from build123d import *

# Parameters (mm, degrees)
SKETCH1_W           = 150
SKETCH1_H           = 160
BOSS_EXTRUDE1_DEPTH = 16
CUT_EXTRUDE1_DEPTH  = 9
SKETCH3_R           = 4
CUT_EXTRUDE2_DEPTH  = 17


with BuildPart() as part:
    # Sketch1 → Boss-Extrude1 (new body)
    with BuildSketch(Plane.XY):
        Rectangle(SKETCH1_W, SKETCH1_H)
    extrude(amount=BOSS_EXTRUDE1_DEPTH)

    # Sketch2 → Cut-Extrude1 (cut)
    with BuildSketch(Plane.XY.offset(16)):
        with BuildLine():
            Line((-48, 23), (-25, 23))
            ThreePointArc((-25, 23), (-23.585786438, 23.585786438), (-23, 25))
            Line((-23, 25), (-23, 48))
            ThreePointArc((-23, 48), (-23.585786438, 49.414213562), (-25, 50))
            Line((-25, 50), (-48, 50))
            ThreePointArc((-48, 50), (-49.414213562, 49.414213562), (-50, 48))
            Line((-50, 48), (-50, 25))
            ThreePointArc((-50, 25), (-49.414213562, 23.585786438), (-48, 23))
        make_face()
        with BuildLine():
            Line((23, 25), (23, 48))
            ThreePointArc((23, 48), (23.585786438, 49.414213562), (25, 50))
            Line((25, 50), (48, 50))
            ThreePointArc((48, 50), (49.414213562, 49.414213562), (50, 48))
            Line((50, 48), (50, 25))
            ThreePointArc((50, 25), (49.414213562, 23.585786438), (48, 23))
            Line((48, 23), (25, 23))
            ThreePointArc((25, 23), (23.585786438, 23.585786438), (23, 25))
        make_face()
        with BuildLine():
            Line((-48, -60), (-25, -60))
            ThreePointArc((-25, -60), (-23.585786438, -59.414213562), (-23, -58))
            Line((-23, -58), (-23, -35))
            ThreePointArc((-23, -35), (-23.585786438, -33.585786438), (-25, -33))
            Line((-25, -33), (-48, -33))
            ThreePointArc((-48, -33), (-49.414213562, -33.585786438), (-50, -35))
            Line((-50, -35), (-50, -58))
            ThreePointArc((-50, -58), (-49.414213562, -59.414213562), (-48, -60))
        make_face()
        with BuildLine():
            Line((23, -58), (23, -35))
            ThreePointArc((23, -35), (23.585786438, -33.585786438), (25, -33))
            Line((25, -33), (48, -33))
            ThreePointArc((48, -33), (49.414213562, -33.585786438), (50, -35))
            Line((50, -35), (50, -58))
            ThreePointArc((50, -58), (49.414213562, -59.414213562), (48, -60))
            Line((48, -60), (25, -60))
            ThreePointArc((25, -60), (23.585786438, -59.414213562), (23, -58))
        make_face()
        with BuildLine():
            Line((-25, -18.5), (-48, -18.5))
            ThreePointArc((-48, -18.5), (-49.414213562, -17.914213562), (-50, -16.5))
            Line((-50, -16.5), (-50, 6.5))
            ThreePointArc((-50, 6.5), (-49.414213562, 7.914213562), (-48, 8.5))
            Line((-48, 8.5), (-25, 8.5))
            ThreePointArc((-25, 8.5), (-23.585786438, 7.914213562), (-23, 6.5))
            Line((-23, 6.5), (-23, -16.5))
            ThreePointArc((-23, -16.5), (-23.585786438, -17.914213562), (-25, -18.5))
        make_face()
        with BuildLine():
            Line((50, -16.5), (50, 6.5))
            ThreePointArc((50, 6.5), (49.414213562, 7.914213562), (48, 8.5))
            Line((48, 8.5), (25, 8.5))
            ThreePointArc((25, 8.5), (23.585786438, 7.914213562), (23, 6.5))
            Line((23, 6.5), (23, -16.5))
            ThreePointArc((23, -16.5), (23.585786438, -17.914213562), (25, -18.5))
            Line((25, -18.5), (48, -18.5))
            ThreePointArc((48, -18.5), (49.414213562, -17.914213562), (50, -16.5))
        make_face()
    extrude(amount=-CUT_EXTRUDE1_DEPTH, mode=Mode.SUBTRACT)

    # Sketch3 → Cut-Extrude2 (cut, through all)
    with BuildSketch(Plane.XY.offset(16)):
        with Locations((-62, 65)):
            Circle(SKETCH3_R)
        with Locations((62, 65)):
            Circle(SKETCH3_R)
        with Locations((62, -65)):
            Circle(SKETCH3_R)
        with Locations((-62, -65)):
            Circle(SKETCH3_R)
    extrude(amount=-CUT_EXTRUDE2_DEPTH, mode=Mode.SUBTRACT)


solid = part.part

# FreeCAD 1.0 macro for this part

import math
import FreeCAD as App
import Part
import Sketcher


def add_polygon(sketch, points):
    """Adds a closed chain of lines whose ends are joined by coincident constraints."""
    first, n = sketch.GeometryCount, len(points)
    for a, b in zip(points, points[1:] + points[:1]):
        sketch.addGeometry(Part.LineSegment(App.Vector(*a, 0), App.Vector(*b, 0)), False)
    for i in range(n):
        sketch.addConstraint(Sketcher.Constraint("Coincident", first + i, 2, first + (i + 1) % n, 1))

doc = App.newDocument("Part")
body = doc.addObject("PartDesign::Body", "Body")

# Sketch on XY plane
sketch1 = body.newObject("Sketcher::SketchObject", "Sketch")
sketch1.AttachmentSupport = (doc.getObject("XY_Plane"), [""])
sketch1.MapMode = "FlatFace"
add_polygon(sketch1, [(-75, 80), (-75, -80), (75, -80), (75, 80)])  # lines 0-3
sketch1.addConstraint(Sketcher.Constraint("Vertical", 0))
sketch1.addConstraint(Sketcher.Constraint("Horizontal", 1))
sketch1.addConstraint(Sketcher.Constraint("Vertical", 2))
sketch1.addConstraint(Sketcher.Constraint("Horizontal", 3))
sketch1.addConstraint(Sketcher.Constraint("Symmetric", 0, 2, 2, 2, -1, 1))
sketch1.addConstraint(Sketcher.Constraint("DistanceX", 1, 1, 1, 2, 150.0))
sketch1.addConstraint(Sketcher.Constraint("DistanceY", 0, 2, 0, 1, 160.0))
pad1 = body.newObject("PartDesign::Pad", "Pad")
pad1.Profile = sketch1
pad1.Length = 16

# Sketch on XY plane
sketch2 = body.newObject("Sketcher::SketchObject", "Sketch001")
sketch2.AttachmentSupport = (doc.getObject("XY_Plane"), [""])
sketch2.MapMode = "FlatFace"
sketch2.AttachmentOffset = App.Placement(App.Vector(0, 0, 16), App.Rotation())
sketch2.addGeometry(Part.LineSegment(App.Vector(-48, 23, 0), App.Vector(-25, 23, 0)), False)
sketch2.addGeometry(Part.ArcOfCircle(Part.Circle(App.Vector(-25, 25, 0), App.Vector(0, 0, 1), 2), math.radians(-90), math.radians(0)), False)
sketch2.addGeometry(Part.LineSegment(App.Vector(-23, 25, 0), App.Vector(-23, 48, 0)), False)
sketch2.addGeometry(Part.ArcOfCircle(Part.Circle(App.Vector(-25, 48, 0), App.Vector(0, 0, 1), 2), math.radians(0), math.radians(90)), False)
sketch2.addGeometry(Part.LineSegment(App.Vector(-25, 50, 0), App.Vector(-48, 50, 0)), False)
sketch2.addGeometry(Part.ArcOfCircle(Part.Circle(App.Vector(-48, 48, 0), App.Vector(0, 0, 1), 2), math.radians(90), math.radians(180)), False)
sketch2.addGeometry(Part.LineSegment(App.Vector(-50, 48, 0), App.Vector(-50, 25, 0)), False)
sketch2.addGeometry(Part.ArcOfCircle(Part.Circle(App.Vector(-48, 25, 0), App.Vector(0, 0, 1), 2), math.radians(-180), math.radians(-90)), False)
sketch2.addGeometry(Part.LineSegment(App.Vector(23, 48, 0), App.Vector(23, 25, 0)), False)
sketch2.addGeometry(Part.ArcOfCircle(Part.Circle(App.Vector(25, 25, 0), App.Vector(0, 0, 1), 2), math.radians(-180), math.radians(-90)), False)
sketch2.addGeometry(Part.LineSegment(App.Vector(25, 23, 0), App.Vector(48, 23, 0)), False)
sketch2.addGeometry(Part.ArcOfCircle(Part.Circle(App.Vector(48, 25, 0), App.Vector(0, 0, 1), 2), math.radians(-90), math.radians(0)), False)
sketch2.addGeometry(Part.LineSegment(App.Vector(50, 25, 0), App.Vector(50, 48, 0)), False)
sketch2.addGeometry(Part.ArcOfCircle(Part.Circle(App.Vector(48, 48, 0), App.Vector(0, 0, 1), 2), math.radians(0), math.radians(90)), False)
sketch2.addGeometry(Part.LineSegment(App.Vector(48, 50, 0), App.Vector(25, 50, 0)), False)
sketch2.addGeometry(Part.ArcOfCircle(Part.Circle(App.Vector(25, 48, 0), App.Vector(0, 0, 1), 2), math.radians(90), math.radians(180)), False)
sketch2.addGeometry(Part.LineSegment(App.Vector(-48, -60, 0), App.Vector(-25, -60, 0)), False)
sketch2.addGeometry(Part.ArcOfCircle(Part.Circle(App.Vector(-25, -58, 0), App.Vector(0, 0, 1), 2), math.radians(-90), math.radians(0)), False)
sketch2.addGeometry(Part.LineSegment(App.Vector(-23, -58, 0), App.Vector(-23, -35, 0)), False)
sketch2.addGeometry(Part.ArcOfCircle(Part.Circle(App.Vector(-25, -35, 0), App.Vector(0, 0, 1), 2), math.radians(0), math.radians(90)), False)
sketch2.addGeometry(Part.LineSegment(App.Vector(-25, -33, 0), App.Vector(-48, -33, 0)), False)
sketch2.addGeometry(Part.ArcOfCircle(Part.Circle(App.Vector(-48, -35, 0), App.Vector(0, 0, 1), 2), math.radians(90), math.radians(180)), False)
sketch2.addGeometry(Part.LineSegment(App.Vector(-50, -35, 0), App.Vector(-50, -58, 0)), False)
sketch2.addGeometry(Part.ArcOfCircle(Part.Circle(App.Vector(-48, -58, 0), App.Vector(0, 0, 1), 2), math.radians(-180), math.radians(-90)), False)
sketch2.addGeometry(Part.LineSegment(App.Vector(23, -35, 0), App.Vector(23, -58, 0)), False)
sketch2.addGeometry(Part.ArcOfCircle(Part.Circle(App.Vector(25, -58, 0), App.Vector(0, 0, 1), 2), math.radians(-180), math.radians(-90)), False)
sketch2.addGeometry(Part.LineSegment(App.Vector(25, -60, 0), App.Vector(48, -60, 0)), False)
sketch2.addGeometry(Part.ArcOfCircle(Part.Circle(App.Vector(48, -58, 0), App.Vector(0, 0, 1), 2), math.radians(-90), math.radians(0)), False)
sketch2.addGeometry(Part.LineSegment(App.Vector(50, -58, 0), App.Vector(50, -35, 0)), False)
sketch2.addGeometry(Part.ArcOfCircle(Part.Circle(App.Vector(48, -35, 0), App.Vector(0, 0, 1), 2), math.radians(0), math.radians(90)), False)
sketch2.addGeometry(Part.LineSegment(App.Vector(48, -33, 0), App.Vector(25, -33, 0)), False)
sketch2.addGeometry(Part.ArcOfCircle(Part.Circle(App.Vector(25, -35, 0), App.Vector(0, 0, 1), 2), math.radians(90), math.radians(180)), False)
sketch2.addGeometry(Part.LineSegment(App.Vector(-48, -18.5, 0), App.Vector(-25, -18.5, 0)), False)
sketch2.addGeometry(Part.ArcOfCircle(Part.Circle(App.Vector(-25, -16.5, 0), App.Vector(0, 0, 1), 2), math.radians(-90), math.radians(0)), False)
sketch2.addGeometry(Part.LineSegment(App.Vector(-23, -16.5, 0), App.Vector(-23, 6.5, 0)), False)
sketch2.addGeometry(Part.ArcOfCircle(Part.Circle(App.Vector(-25, 6.5, 0), App.Vector(0, 0, 1), 2), math.radians(0), math.radians(90)), False)
sketch2.addGeometry(Part.LineSegment(App.Vector(-25, 8.5, 0), App.Vector(-48, 8.5, 0)), False)
sketch2.addGeometry(Part.ArcOfCircle(Part.Circle(App.Vector(-48, 6.5, 0), App.Vector(0, 0, 1), 2), math.radians(90), math.radians(180)), False)
sketch2.addGeometry(Part.LineSegment(App.Vector(-50, 6.5, 0), App.Vector(-50, -16.5, 0)), False)
sketch2.addGeometry(Part.ArcOfCircle(Part.Circle(App.Vector(-48, -16.5, 0), App.Vector(0, 0, 1), 2), math.radians(-180), math.radians(-90)), False)
sketch2.addGeometry(Part.LineSegment(App.Vector(50, -16.5, 0), App.Vector(50, 6.5, 0)), False)
sketch2.addGeometry(Part.ArcOfCircle(Part.Circle(App.Vector(48, 6.5, 0), App.Vector(0, 0, 1), 2), math.radians(0), math.radians(90)), False)
sketch2.addGeometry(Part.LineSegment(App.Vector(48, 8.5, 0), App.Vector(25, 8.5, 0)), False)
sketch2.addGeometry(Part.ArcOfCircle(Part.Circle(App.Vector(25, 6.5, 0), App.Vector(0, 0, 1), 2), math.radians(90), math.radians(180)), False)
sketch2.addGeometry(Part.LineSegment(App.Vector(23, 6.5, 0), App.Vector(23, -16.5, 0)), False)
sketch2.addGeometry(Part.ArcOfCircle(Part.Circle(App.Vector(25, -16.5, 0), App.Vector(0, 0, 1), 2), math.radians(-180), math.radians(-90)), False)
sketch2.addGeometry(Part.LineSegment(App.Vector(25, -18.5, 0), App.Vector(48, -18.5, 0)), False)
sketch2.addGeometry(Part.ArcOfCircle(Part.Circle(App.Vector(48, -16.5, 0), App.Vector(0, 0, 1), 2), math.radians(-90), math.radians(0)), False)
sketch2.addConstraint(Sketcher.Constraint("Tangent", 0, 2, 1, 1))
sketch2.addConstraint(Sketcher.Constraint("Tangent", 1, 2, 2, 1))
sketch2.addConstraint(Sketcher.Constraint("Tangent", 2, 2, 3, 1))
sketch2.addConstraint(Sketcher.Constraint("Tangent", 3, 2, 4, 1))
sketch2.addConstraint(Sketcher.Constraint("Tangent", 4, 2, 5, 1))
sketch2.addConstraint(Sketcher.Constraint("Tangent", 5, 2, 6, 1))
sketch2.addConstraint(Sketcher.Constraint("Tangent", 6, 2, 7, 1))
sketch2.addConstraint(Sketcher.Constraint("Tangent", 7, 2, 0, 1))
sketch2.addConstraint(Sketcher.Constraint("Tangent", 8, 2, 9, 1))
sketch2.addConstraint(Sketcher.Constraint("Tangent", 9, 2, 10, 1))
sketch2.addConstraint(Sketcher.Constraint("Tangent", 10, 2, 11, 1))
sketch2.addConstraint(Sketcher.Constraint("Tangent", 11, 2, 12, 1))
sketch2.addConstraint(Sketcher.Constraint("Tangent", 12, 2, 13, 1))
sketch2.addConstraint(Sketcher.Constraint("Tangent", 13, 2, 14, 1))
sketch2.addConstraint(Sketcher.Constraint("Tangent", 14, 2, 15, 1))
sketch2.addConstraint(Sketcher.Constraint("Tangent", 15, 2, 8, 1))
sketch2.addConstraint(Sketcher.Constraint("Tangent", 16, 2, 17, 1))
sketch2.addConstraint(Sketcher.Constraint("Tangent", 17, 2, 18, 1))
sketch2.addConstraint(Sketcher.Constraint("Tangent", 18, 2, 19, 1))
sketch2.addConstraint(Sketcher.Constraint("Tangent", 19, 2, 20, 1))
sketch2.addConstraint(Sketcher.Constraint("Tangent", 20, 2, 21, 1))
sketch2.addConstraint(Sketcher.Constraint("Tangent", 21, 2, 22, 1))
sketch2.addConstraint(Sketcher.Constraint("Tangent", 22, 2, 23, 1))
sketch2.addConstraint(Sketcher.Constraint("Tangent", 23, 2, 16, 1))
sketch2.addConstraint(Sketcher.Constraint("Tangent", 24, 2, 25, 1))
sketch2.addConstraint(Sketcher.Constraint("Tangent", 25, 2, 26, 1))
sketch2.addConstraint(Sketcher.Constraint("Tangent", 26, 2, 27, 1))
sketch2.addConstraint(Sketcher.Constraint("Tangent", 27, 2, 28, 1))
sketch2.addConstraint(Sketcher.Constraint("Tangent", 28, 2, 29, 1))
sketch2.addConstraint(Sketcher.Constraint("Tangent", 29, 2, 30, 1))
sketch2.addConstraint(Sketcher.Constraint("Tangent", 30, 2, 31, 1))
sketch2.addConstraint(Sketcher.Constraint("Tangent", 31, 2, 24, 1))
sketch2.addConstraint(Sketcher.Constraint("Tangent", 32, 2, 33, 1))
sketch2.addConstraint(Sketcher.Constraint("Tangent", 33, 2, 34, 1))
sketch2.addConstraint(Sketcher.Constraint("Tangent", 34, 2, 35, 1))
sketch2.addConstraint(Sketcher.Constraint("Tangent", 35, 2, 36, 1))
sketch2.addConstraint(Sketcher.Constraint("Tangent", 36, 2, 37, 1))
sketch2.addConstraint(Sketcher.Constraint("Tangent", 37, 2, 38, 1))
sketch2.addConstraint(Sketcher.Constraint("Tangent", 38, 2, 39, 1))
sketch2.addConstraint(Sketcher.Constraint("Tangent", 39, 2, 32, 1))
sketch2.addConstraint(Sketcher.Constraint("Tangent", 40, 2, 41, 1))
sketch2.addConstraint(Sketcher.Constraint("Tangent", 41, 2, 42, 1))
sketch2.addConstraint(Sketcher.Constraint("Tangent", 42, 2, 43, 1))
sketch2.addConstraint(Sketcher.Constraint("Tangent", 43, 2, 44, 1))
sketch2.addConstraint(Sketcher.Constraint("Tangent", 44, 2, 45, 1))
sketch2.addConstraint(Sketcher.Constraint("Tangent", 45, 2, 46, 1))
sketch2.addConstraint(Sketcher.Constraint("Tangent", 46, 2, 47, 1))
sketch2.addConstraint(Sketcher.Constraint("Tangent", 47, 2, 40, 1))
sketch2.addConstraint(Sketcher.Constraint("Horizontal", 0))
sketch2.addConstraint(Sketcher.Constraint("Vertical", 2))
sketch2.addConstraint(Sketcher.Constraint("Horizontal", 4))
sketch2.addConstraint(Sketcher.Constraint("Vertical", 6))
sketch2.addConstraint(Sketcher.Constraint("Vertical", 8))
sketch2.addConstraint(Sketcher.Constraint("Horizontal", 10))
sketch2.addConstraint(Sketcher.Constraint("Vertical", 12))
sketch2.addConstraint(Sketcher.Constraint("Horizontal", 14))
sketch2.addConstraint(Sketcher.Constraint("Horizontal", 16))
sketch2.addConstraint(Sketcher.Constraint("Vertical", 18))
sketch2.addConstraint(Sketcher.Constraint("Horizontal", 20))
sketch2.addConstraint(Sketcher.Constraint("Vertical", 22))
sketch2.addConstraint(Sketcher.Constraint("Vertical", 24))
sketch2.addConstraint(Sketcher.Constraint("Horizontal", 26))
sketch2.addConstraint(Sketcher.Constraint("Vertical", 28))
sketch2.addConstraint(Sketcher.Constraint("Horizontal", 30))
sketch2.addConstraint(Sketcher.Constraint("Horizontal", 32))
sketch2.addConstraint(Sketcher.Constraint("Vertical", 34))
sketch2.addConstraint(Sketcher.Constraint("Horizontal", 36))
sketch2.addConstraint(Sketcher.Constraint("Vertical", 38))
sketch2.addConstraint(Sketcher.Constraint("Vertical", 40))
sketch2.addConstraint(Sketcher.Constraint("Horizontal", 42))
sketch2.addConstraint(Sketcher.Constraint("Vertical", 44))
sketch2.addConstraint(Sketcher.Constraint("Horizontal", 46))
sketch2.addConstraint(Sketcher.Constraint("Equal", 1, 3))
sketch2.addConstraint(Sketcher.Constraint("Equal", 3, 5))
sketch2.addConstraint(Sketcher.Constraint("Equal", 5, 7))
sketch2.addConstraint(Sketcher.Constraint("Equal", 7, 9))
sketch2.addConstraint(Sketcher.Constraint("Equal", 9, 11))
sketch2.addConstraint(Sketcher.Constraint("Equal", 11, 13))
sketch2.addConstraint(Sketcher.Constraint("Equal", 13, 15))
sketch2.addConstraint(Sketcher.Constraint("Equal", 15, 17))
sketch2.addConstraint(Sketcher.Constraint("Equal", 17, 19))
sketch2.addConstraint(Sketcher.Constraint("Equal", 19, 21))
sketch2.addConstraint(Sketcher.Constraint("Equal", 21, 23))
sketch2.addConstraint(Sketcher.Constraint("Equal", 23, 25))
sketch2.addConstraint(Sketcher.Constraint("Equal", 25, 27))
sketch2.addConstraint(Sketcher.Constraint("Equal", 27, 29))
sketch2.addConstraint(Sketcher.Constraint("Equal", 29, 31))
sketch2.addConstraint(Sketcher.Constraint("Equal", 31, 33))
sketch2.addConstraint(Sketcher.Constraint("Equal", 33, 35))
sketch2.addConstraint(Sketcher.Constraint("Equal", 35, 37))
sketch2.addConstraint(Sketcher.Constraint("Equal", 37, 39))
sketch2.addConstraint(Sketcher.Constraint("Equal", 39, 41))
sketch2.addConstraint(Sketcher.Constraint("Equal", 41, 43))
sketch2.addConstraint(Sketcher.Constraint("Equal", 43, 45))
sketch2.addConstraint(Sketcher.Constraint("Equal", 45, 47))
sketch2.addConstraint(Sketcher.Constraint("Symmetric", 1, 3, 9, 3, -2))
sketch2.addConstraint(Sketcher.Constraint("Symmetric", 5, 3, 13, 3, -2))
sketch2.addConstraint(Sketcher.Constraint("Symmetric", 17, 3, 25, 3, -2))
sketch2.addConstraint(Sketcher.Constraint("Symmetric", 21, 3, 29, 3, -2))
sketch2.addConstraint(Sketcher.Constraint("Symmetric", 37, 3, 41, 3, -2))
sketch2.addConstraint(Sketcher.Constraint("Symmetric", 33, 3, 45, 3, -2))
sketch2.addConstraint(Sketcher.Constraint("Vertical", 3, 3, 17, 3))
sketch2.addConstraint(Sketcher.Constraint("Vertical", 7, 3, 21, 3))
sketch2.addConstraint(Sketcher.Constraint("Vertical", 19, 3, 33, 3))
sketch2.addConstraint(Sketcher.Constraint("Vertical", 23, 3, 37, 3))
sketch2.addConstraint(Sketcher.Constraint("Equal", 46, 2))
sketch2.addConstraint(Sketcher.Constraint("Equal", 12, 18))
sketch2.addConstraint(Sketcher.Constraint("Equal", 28, 34))
sketch2.addConstraint(Sketcher.Constraint("Radius", 1, 2.0))
sketch2.addConstraint(Sketcher.Constraint("DistanceX", 0, 1, 0, 2, 23.0))
sketch2.addConstraint(Sketcher.Constraint("DistanceX", 1, 3, -1, 1, 25.0))
sketch2.addConstraint(Sketcher.Constraint("DistanceY", -1, 1, 1, 3, 25.0))
sketch2.addConstraint(Sketcher.Constraint("DistanceY", 17, 3, -1, 1, 58.0))
sketch2.addConstraint(Sketcher.Constraint("DistanceY", 33, 3, -1, 1, 16.5))
pocket1 = body.newObject("PartDesign::Pocket", "Pocket")
pocket1.Profile = sketch2
pocket1.Length = 9

# Sketch on XY plane
sketch3 = body.newObject("Sketcher::SketchObject", "Sketch002")
sketch3.AttachmentSupport = (doc.getObject("XY_Plane"), [""])
sketch3.MapMode = "FlatFace"
sketch3.AttachmentOffset = App.Placement(App.Vector(0, 0, 16), App.Rotation())
sketch3.addGeometry(Part.Circle(App.Vector(-62, 65, 0), App.Vector(0, 0, 1), 4), False)
sketch3.addGeometry(Part.Circle(App.Vector(62, 65, 0), App.Vector(0, 0, 1), 4), False)
sketch3.addGeometry(Part.Circle(App.Vector(62, -65, 0), App.Vector(0, 0, 1), 4), False)
sketch3.addGeometry(Part.Circle(App.Vector(-62, -65, 0), App.Vector(0, 0, 1), 4), False)
sketch3.addConstraint(Sketcher.Constraint("Equal", 0, 1))
sketch3.addConstraint(Sketcher.Constraint("Equal", 1, 2))
sketch3.addConstraint(Sketcher.Constraint("Equal", 2, 3))
sketch3.addConstraint(Sketcher.Constraint("Symmetric", 0, 3, 2, 3, -1, 1))
sketch3.addConstraint(Sketcher.Constraint("Symmetric", 1, 3, 3, 3, -1, 1))
sketch3.addConstraint(Sketcher.Constraint("Symmetric", 0, 3, 1, 3, -2))
sketch3.addConstraint(Sketcher.Constraint("Diameter", 0, 8.0))
sketch3.addConstraint(Sketcher.Constraint("DistanceX", 0, 3, -1, 1, 62.0))
sketch3.addConstraint(Sketcher.Constraint("DistanceY", -1, 1, 0, 3, 65.0))
pocket2 = body.newObject("PartDesign::Pocket", "Pocket001")
pocket2.Profile = sketch3
pocket2.Type = "ThroughAll"

doc.recompute()
